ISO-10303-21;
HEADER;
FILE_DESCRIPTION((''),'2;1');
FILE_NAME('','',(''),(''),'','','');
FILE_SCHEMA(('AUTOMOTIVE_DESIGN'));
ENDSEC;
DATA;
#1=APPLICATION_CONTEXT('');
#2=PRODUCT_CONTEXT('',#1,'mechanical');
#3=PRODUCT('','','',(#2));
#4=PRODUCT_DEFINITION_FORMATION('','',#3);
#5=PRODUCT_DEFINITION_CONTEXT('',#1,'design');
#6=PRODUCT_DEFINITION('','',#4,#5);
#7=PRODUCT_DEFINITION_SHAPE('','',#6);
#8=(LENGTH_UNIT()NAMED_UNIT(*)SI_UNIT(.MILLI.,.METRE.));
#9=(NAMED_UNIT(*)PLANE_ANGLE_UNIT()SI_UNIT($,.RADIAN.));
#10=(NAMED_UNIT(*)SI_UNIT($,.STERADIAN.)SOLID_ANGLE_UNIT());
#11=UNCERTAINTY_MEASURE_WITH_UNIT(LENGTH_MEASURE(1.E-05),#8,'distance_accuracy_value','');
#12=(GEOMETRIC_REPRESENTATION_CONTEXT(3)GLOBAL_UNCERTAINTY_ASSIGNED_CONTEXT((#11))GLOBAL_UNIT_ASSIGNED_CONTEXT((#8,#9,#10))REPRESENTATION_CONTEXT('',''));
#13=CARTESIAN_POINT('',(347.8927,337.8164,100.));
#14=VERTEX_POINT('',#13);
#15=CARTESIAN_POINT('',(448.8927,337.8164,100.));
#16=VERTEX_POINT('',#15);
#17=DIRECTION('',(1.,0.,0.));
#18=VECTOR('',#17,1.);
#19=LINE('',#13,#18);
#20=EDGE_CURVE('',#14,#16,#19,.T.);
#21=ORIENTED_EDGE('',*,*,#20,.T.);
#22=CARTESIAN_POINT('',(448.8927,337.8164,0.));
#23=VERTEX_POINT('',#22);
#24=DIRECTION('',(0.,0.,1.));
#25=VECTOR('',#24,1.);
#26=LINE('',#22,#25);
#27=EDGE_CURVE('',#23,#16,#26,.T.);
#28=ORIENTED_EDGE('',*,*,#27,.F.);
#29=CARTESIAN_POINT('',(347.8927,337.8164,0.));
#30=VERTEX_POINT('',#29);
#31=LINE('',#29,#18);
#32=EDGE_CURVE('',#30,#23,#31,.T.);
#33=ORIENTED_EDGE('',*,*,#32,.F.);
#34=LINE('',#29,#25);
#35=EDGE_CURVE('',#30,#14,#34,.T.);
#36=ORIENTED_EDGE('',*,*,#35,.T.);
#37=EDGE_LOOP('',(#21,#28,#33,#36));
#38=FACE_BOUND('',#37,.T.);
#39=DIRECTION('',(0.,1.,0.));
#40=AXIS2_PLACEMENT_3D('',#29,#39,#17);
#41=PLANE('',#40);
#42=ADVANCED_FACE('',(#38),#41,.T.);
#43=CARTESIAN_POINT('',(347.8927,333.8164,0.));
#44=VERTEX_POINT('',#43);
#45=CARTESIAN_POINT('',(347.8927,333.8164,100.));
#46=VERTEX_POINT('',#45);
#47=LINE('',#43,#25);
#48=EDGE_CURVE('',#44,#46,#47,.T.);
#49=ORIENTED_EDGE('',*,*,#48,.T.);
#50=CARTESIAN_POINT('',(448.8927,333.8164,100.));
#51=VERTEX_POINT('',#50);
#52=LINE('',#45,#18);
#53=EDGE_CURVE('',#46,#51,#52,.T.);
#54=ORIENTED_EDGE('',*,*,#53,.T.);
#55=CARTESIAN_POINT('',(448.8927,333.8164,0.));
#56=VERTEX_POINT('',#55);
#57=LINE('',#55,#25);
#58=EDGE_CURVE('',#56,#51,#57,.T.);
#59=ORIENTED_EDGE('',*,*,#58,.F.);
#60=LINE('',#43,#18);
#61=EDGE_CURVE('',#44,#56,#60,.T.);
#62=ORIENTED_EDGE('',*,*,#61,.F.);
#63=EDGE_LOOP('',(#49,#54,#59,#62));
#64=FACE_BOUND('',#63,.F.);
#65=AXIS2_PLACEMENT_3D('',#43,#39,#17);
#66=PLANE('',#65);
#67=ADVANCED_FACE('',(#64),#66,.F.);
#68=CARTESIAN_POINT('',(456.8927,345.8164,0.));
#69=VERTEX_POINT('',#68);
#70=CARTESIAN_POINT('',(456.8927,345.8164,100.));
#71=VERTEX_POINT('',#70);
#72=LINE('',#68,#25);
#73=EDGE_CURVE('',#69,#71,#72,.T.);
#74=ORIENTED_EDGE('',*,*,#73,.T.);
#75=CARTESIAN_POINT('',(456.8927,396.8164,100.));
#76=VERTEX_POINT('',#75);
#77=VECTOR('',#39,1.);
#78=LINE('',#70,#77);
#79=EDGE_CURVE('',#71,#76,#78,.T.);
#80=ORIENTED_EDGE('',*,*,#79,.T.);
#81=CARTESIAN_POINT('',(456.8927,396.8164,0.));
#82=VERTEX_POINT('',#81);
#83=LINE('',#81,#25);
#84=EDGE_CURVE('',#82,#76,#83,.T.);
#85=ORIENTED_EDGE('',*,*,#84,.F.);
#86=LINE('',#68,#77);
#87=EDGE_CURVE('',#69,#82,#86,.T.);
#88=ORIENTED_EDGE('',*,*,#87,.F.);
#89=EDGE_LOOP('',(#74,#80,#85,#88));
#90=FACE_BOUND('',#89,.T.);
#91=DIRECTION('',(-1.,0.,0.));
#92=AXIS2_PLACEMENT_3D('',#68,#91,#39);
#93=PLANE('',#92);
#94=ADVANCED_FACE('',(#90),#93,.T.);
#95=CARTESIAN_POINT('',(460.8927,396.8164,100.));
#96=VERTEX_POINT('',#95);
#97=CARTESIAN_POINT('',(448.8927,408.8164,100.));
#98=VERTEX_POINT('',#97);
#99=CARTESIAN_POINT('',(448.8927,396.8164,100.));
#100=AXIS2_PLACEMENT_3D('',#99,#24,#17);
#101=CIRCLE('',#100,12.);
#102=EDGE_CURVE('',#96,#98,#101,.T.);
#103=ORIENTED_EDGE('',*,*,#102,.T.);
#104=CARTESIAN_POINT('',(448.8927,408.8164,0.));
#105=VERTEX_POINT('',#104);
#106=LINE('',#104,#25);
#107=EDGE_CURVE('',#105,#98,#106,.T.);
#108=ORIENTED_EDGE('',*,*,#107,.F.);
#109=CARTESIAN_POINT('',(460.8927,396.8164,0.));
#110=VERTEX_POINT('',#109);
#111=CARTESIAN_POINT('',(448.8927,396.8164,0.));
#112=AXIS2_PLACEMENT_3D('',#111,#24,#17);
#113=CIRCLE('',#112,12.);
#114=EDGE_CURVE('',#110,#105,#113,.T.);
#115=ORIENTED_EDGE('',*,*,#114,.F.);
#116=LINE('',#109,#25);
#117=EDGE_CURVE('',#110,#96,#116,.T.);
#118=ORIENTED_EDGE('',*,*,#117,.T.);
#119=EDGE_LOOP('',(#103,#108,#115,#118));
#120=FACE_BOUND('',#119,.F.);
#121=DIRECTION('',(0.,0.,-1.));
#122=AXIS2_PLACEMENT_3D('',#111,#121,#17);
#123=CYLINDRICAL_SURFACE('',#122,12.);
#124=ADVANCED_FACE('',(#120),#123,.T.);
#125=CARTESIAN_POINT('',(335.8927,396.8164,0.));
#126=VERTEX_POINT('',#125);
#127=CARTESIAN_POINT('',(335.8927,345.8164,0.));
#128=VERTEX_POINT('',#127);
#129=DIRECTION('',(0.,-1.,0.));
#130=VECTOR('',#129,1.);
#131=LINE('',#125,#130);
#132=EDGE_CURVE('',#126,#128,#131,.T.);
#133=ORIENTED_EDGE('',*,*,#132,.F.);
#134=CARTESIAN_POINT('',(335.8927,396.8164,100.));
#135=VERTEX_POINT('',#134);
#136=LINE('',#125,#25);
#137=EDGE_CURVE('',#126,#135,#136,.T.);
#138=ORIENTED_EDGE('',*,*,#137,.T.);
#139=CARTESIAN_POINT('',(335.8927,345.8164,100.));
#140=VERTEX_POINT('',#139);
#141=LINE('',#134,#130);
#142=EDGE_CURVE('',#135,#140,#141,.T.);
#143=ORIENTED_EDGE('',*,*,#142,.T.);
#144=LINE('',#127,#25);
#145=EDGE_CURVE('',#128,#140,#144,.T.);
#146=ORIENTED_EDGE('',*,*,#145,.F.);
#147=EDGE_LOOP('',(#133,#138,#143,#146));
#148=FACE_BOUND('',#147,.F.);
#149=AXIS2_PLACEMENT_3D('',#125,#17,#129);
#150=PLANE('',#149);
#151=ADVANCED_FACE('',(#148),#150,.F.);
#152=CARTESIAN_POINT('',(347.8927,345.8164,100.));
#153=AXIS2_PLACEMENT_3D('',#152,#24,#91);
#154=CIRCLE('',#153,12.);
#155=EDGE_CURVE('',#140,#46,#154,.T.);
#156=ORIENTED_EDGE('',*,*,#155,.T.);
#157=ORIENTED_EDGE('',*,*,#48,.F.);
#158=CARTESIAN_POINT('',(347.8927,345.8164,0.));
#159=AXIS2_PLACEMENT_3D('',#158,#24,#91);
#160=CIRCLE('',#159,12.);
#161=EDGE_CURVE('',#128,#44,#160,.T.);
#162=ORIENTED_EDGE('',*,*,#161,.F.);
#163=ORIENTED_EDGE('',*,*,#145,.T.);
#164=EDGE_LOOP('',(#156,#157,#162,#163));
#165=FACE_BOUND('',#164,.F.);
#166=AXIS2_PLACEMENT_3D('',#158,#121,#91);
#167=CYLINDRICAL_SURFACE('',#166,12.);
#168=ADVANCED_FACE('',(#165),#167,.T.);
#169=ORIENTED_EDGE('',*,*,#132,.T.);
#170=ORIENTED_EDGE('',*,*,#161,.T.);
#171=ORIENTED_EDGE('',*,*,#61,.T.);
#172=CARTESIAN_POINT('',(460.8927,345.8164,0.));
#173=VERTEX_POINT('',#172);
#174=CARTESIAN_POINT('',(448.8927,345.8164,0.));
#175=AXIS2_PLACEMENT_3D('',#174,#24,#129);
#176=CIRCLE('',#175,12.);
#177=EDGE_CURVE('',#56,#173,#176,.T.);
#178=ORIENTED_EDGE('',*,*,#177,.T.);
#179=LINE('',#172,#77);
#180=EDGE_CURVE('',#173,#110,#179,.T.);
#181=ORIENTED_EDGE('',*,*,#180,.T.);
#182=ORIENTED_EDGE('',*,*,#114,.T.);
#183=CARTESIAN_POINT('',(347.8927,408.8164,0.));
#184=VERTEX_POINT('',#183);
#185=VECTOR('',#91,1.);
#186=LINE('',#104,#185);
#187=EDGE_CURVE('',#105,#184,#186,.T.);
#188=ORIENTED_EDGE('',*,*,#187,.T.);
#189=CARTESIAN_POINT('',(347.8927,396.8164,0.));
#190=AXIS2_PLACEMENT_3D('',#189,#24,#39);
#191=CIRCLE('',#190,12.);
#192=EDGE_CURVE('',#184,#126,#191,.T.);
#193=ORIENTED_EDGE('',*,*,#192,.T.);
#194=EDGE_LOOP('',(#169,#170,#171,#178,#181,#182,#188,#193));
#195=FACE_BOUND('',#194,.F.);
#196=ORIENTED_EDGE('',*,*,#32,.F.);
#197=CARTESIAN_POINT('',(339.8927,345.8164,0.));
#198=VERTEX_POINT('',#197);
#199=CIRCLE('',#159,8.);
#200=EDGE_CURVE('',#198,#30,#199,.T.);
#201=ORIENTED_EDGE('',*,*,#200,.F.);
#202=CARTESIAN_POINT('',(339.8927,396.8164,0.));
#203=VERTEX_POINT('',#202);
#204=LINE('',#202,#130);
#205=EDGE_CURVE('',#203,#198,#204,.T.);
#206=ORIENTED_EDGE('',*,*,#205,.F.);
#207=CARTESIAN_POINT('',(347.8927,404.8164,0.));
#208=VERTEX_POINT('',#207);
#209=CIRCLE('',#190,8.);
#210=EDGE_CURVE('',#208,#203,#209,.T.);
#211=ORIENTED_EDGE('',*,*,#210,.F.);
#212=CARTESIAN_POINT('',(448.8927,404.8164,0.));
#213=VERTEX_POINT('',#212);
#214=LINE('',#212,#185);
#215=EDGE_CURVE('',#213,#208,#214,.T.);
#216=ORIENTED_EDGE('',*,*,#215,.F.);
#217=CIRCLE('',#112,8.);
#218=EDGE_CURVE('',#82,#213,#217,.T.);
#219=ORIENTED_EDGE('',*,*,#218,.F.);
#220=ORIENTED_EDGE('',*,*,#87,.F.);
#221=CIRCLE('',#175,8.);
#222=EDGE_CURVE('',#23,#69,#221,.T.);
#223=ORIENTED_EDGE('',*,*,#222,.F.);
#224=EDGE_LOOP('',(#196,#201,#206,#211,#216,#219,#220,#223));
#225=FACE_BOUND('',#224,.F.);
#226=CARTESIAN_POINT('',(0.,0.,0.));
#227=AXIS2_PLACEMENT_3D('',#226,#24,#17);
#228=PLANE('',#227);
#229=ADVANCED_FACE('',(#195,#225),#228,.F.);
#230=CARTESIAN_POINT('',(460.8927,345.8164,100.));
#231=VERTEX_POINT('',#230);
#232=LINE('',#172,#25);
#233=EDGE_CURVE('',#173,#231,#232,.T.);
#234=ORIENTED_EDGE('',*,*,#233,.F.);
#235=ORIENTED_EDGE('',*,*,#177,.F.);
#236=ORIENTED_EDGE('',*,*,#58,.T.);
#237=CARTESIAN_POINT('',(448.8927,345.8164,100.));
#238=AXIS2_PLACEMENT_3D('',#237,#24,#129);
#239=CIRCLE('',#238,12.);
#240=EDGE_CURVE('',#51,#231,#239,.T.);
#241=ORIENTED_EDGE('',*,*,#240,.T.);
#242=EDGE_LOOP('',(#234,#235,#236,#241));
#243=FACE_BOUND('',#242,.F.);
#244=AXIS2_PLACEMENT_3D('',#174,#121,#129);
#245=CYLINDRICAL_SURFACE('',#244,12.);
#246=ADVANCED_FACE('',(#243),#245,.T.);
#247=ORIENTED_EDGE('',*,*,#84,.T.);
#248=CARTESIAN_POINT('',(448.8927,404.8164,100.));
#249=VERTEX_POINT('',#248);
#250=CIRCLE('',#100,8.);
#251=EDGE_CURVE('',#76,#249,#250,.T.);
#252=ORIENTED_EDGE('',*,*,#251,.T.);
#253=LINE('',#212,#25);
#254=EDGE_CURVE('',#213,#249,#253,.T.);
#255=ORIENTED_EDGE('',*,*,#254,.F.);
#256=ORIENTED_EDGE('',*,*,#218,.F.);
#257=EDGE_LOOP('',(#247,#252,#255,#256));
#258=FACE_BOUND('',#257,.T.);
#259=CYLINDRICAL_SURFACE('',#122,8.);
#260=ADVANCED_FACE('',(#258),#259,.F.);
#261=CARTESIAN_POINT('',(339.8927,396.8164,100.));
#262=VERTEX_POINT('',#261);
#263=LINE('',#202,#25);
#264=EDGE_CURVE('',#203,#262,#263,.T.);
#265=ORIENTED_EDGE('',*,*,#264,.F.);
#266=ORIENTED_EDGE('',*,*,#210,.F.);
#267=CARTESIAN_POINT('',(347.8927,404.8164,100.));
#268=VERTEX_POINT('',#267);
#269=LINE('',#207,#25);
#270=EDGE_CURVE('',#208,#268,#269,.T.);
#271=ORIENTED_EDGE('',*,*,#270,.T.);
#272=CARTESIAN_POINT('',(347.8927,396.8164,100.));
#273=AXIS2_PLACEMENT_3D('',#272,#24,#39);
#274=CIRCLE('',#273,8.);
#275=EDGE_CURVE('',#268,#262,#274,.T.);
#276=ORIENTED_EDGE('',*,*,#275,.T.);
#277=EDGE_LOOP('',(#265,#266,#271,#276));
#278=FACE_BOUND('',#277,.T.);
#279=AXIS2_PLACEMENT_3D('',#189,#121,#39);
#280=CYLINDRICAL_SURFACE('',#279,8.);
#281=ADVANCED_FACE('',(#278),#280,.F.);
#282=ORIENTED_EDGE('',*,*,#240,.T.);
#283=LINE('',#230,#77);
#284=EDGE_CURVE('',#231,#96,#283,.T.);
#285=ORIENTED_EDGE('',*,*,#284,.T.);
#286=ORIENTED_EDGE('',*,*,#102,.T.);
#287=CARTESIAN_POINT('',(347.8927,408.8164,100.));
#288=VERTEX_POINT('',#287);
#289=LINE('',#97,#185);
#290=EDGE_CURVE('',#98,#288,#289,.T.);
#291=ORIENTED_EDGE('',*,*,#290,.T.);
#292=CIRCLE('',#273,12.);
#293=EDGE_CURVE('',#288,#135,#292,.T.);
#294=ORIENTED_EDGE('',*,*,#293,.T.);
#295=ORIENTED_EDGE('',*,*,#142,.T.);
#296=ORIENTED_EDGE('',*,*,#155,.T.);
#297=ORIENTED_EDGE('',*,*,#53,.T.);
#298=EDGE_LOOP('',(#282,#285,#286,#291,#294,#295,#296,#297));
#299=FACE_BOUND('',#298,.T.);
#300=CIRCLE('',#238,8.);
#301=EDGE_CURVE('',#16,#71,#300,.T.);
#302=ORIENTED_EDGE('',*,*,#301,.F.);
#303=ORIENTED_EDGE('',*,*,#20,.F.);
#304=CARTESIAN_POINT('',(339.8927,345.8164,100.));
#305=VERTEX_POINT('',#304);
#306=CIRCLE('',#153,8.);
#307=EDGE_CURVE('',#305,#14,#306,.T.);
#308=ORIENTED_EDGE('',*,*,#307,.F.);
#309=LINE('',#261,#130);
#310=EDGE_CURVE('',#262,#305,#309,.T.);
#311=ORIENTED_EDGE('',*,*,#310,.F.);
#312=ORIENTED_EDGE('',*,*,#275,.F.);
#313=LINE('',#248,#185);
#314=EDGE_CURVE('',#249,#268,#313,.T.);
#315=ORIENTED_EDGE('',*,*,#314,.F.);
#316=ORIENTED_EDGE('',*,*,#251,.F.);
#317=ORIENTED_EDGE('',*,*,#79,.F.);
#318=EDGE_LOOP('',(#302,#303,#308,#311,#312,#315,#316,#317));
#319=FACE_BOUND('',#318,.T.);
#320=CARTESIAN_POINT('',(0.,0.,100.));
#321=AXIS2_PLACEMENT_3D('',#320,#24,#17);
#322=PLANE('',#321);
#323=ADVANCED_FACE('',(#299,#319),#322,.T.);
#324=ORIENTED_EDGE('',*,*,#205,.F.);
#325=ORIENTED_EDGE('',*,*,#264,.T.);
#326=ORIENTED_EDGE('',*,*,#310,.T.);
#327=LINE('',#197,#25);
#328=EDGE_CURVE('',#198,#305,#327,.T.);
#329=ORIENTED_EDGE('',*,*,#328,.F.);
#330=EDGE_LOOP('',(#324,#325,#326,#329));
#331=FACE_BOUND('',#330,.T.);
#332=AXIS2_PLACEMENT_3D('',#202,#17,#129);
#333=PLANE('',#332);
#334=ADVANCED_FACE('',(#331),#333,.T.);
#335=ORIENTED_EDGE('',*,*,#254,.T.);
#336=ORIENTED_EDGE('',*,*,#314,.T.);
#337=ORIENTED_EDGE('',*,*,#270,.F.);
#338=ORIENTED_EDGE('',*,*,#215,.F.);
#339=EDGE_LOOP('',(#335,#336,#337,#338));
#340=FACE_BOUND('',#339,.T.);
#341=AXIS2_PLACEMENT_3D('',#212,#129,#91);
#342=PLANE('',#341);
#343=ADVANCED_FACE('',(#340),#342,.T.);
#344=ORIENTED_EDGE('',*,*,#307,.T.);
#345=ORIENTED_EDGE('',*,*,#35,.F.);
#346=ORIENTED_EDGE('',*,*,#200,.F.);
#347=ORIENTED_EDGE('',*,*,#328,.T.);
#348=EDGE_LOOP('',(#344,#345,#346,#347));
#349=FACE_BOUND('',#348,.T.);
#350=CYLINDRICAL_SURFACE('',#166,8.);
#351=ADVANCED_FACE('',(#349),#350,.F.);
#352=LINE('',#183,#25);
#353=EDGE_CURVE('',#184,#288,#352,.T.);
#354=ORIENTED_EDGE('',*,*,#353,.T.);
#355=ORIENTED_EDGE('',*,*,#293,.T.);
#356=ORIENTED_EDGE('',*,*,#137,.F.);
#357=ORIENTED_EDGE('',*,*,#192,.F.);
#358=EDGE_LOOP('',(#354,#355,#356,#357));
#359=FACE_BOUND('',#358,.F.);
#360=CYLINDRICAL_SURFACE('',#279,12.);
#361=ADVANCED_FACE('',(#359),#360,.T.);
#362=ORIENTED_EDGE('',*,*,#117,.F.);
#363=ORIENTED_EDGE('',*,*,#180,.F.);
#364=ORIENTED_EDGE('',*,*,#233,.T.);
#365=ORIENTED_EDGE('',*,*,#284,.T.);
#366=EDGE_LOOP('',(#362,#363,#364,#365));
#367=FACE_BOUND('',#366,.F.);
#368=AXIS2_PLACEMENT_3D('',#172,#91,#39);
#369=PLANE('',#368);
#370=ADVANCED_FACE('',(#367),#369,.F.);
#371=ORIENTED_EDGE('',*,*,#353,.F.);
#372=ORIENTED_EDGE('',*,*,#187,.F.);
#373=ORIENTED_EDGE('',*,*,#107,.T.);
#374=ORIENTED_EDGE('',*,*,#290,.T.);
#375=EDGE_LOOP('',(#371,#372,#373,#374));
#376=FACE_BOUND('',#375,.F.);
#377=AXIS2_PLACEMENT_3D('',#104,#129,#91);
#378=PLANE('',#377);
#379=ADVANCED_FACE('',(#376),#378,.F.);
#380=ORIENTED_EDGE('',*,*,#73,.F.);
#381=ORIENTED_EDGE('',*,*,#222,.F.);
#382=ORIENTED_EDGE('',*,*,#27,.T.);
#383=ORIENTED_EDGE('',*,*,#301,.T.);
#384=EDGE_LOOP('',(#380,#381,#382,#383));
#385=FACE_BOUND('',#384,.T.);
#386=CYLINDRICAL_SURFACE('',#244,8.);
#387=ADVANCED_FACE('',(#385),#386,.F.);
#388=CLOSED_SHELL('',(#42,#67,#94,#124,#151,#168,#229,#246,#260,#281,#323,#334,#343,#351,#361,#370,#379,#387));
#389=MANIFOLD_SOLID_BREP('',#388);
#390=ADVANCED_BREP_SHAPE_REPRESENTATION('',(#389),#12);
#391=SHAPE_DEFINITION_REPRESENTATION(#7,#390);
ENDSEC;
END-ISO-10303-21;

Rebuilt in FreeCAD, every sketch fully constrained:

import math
import FreeCAD as App
import Part
import Sketcher

V = App.Vector
Q = App.Units.Quantity

doc = App.newDocument("Part")
body = doc.addObject("PartDesign::Body", "Body")

sketch1 = doc.addObject("Sketcher::SketchObject", "Sketch")
body.addObject(sketch1)
sketch1.AttachmentSupport = (doc.XY_Plane, [""])
sketch1.MapMode = "FlatFace"
sketch1.addGeometry([
    Part.ArcOfCircle(Part.Circle(V(348, 346, 0), V(0, 0, 1), 12), math.radians(180), math.radians(270)),
    Part.LineSegment(V(348, 334, 0), V(449, 334, 0)),
    Part.ArcOfCircle(Part.Circle(V(449, 346, 0), V(0, 0, 1), 12), math.radians(-90), math.radians(0)),
    Part.LineSegment(V(461, 346, 0), V(461, 397, 0)),
    Part.ArcOfCircle(Part.Circle(V(449, 397, 0), V(0, 0, 1), 12), math.radians(0), math.radians(90)),
    Part.LineSegment(V(449, 409, 0), V(348, 409, 0)),
    Part.ArcOfCircle(Part.Circle(V(348, 397, 0), V(0, 0, 1), 12), math.radians(90), math.radians(180)),
    Part.LineSegment(V(336, 397, 0), V(336, 346, 0)),
    Part.LineSegment(V(449, 338, 0), V(348, 338, 0)),
    Part.ArcOfCircle(Part.Circle(V(348, 346, 0), V(0, 0, 1), 8), math.radians(180), math.radians(270)),
    Part.LineSegment(V(340, 346, 0), V(340, 397, 0)),
    Part.ArcOfCircle(Part.Circle(V(348, 397, 0), V(0, 0, 1), 8), math.radians(90), math.radians(180)),
    Part.LineSegment(V(348, 405, 0), V(449, 405, 0)),
    Part.ArcOfCircle(Part.Circle(V(449, 397, 0), V(0, 0, 1), 8), math.radians(0), math.radians(90)),
    Part.LineSegment(V(457, 397, 0), V(457, 346, 0)),
    Part.ArcOfCircle(Part.Circle(V(449, 346, 0), V(0, 0, 1), 8), math.radians(-90), math.radians(0)),
], False)
sketch1.addConstraint([
    Sketcher.Constraint("Tangent", 0, 2, 1, 1),
    Sketcher.Constraint("Tangent", 1, 2, 2, 1),
    Sketcher.Constraint("Tangent", 2, 2, 3, 1),
    Sketcher.Constraint("Tangent", 3, 2, 4, 1),
    Sketcher.Constraint("Tangent", 4, 2, 5, 1),
    Sketcher.Constraint("Tangent", 5, 2, 6, 1),
    Sketcher.Constraint("Tangent", 6, 2, 7, 1),
    Sketcher.Constraint("Tangent", 7, 2, 0, 1),
    Sketcher.Constraint("Tangent", 8, 2, 9, 2),
    Sketcher.Constraint("Tangent", 9, 1, 10, 1),
    Sketcher.Constraint("Tangent", 10, 2, 11, 2),
    Sketcher.Constraint("Tangent", 11, 1, 12, 1),
    Sketcher.Constraint("Tangent", 12, 2, 13, 2),
    Sketcher.Constraint("Tangent", 13, 1, 14, 1),
    Sketcher.Constraint("Tangent", 14, 2, 15, 2),
    Sketcher.Constraint("Tangent", 15, 1, 8, 1),
    Sketcher.Constraint("Horizontal", 1),
    Sketcher.Constraint("Vertical", 3),
    Sketcher.Constraint("Horizontal", 5),
    Sketcher.Constraint("Vertical", 7),
    Sketcher.Constraint("Horizontal", 8),
    Sketcher.Constraint("Vertical", 10),
    Sketcher.Constraint("Horizontal", 12),
    Sketcher.Constraint("Vertical", 14),
    Sketcher.Constraint("Coincident", 9, 3, 0, 3),
    Sketcher.Constraint("Coincident", 11, 3, 6, 3),
    Sketcher.Constraint("Coincident", 13, 3, 4, 3),
    Sketcher.Constraint("Equal", 0, 2),
    Sketcher.Constraint("Equal", 2, 4),
    Sketcher.Constraint("Equal", 4, 6),
    Sketcher.Constraint("Equal", 13, 15),
    Sketcher.Constraint("Radius", 0, Q("12 mm")),
    Sketcher.Constraint("Radius", 9, Q("8 mm")),
    Sketcher.Constraint("DistanceX", 1, 1, 1, 2, Q("101 mm")),
    Sketcher.Constraint("DistanceY", 3, 1, 3, 2, Q("51 mm")),
    Sketcher.Constraint("DistanceX", -1, 1, 0, 3, Q("347.8927 mm")),
    Sketcher.Constraint("DistanceY", -1, 1, 0, 3, Q("345.8164 mm")),
])
pad1 = doc.addObject("PartDesign::Pad", "Pad")
body.addObject(pad1)
pad1.Profile = sketch1
pad1.Length = 100

doc.recompute()
